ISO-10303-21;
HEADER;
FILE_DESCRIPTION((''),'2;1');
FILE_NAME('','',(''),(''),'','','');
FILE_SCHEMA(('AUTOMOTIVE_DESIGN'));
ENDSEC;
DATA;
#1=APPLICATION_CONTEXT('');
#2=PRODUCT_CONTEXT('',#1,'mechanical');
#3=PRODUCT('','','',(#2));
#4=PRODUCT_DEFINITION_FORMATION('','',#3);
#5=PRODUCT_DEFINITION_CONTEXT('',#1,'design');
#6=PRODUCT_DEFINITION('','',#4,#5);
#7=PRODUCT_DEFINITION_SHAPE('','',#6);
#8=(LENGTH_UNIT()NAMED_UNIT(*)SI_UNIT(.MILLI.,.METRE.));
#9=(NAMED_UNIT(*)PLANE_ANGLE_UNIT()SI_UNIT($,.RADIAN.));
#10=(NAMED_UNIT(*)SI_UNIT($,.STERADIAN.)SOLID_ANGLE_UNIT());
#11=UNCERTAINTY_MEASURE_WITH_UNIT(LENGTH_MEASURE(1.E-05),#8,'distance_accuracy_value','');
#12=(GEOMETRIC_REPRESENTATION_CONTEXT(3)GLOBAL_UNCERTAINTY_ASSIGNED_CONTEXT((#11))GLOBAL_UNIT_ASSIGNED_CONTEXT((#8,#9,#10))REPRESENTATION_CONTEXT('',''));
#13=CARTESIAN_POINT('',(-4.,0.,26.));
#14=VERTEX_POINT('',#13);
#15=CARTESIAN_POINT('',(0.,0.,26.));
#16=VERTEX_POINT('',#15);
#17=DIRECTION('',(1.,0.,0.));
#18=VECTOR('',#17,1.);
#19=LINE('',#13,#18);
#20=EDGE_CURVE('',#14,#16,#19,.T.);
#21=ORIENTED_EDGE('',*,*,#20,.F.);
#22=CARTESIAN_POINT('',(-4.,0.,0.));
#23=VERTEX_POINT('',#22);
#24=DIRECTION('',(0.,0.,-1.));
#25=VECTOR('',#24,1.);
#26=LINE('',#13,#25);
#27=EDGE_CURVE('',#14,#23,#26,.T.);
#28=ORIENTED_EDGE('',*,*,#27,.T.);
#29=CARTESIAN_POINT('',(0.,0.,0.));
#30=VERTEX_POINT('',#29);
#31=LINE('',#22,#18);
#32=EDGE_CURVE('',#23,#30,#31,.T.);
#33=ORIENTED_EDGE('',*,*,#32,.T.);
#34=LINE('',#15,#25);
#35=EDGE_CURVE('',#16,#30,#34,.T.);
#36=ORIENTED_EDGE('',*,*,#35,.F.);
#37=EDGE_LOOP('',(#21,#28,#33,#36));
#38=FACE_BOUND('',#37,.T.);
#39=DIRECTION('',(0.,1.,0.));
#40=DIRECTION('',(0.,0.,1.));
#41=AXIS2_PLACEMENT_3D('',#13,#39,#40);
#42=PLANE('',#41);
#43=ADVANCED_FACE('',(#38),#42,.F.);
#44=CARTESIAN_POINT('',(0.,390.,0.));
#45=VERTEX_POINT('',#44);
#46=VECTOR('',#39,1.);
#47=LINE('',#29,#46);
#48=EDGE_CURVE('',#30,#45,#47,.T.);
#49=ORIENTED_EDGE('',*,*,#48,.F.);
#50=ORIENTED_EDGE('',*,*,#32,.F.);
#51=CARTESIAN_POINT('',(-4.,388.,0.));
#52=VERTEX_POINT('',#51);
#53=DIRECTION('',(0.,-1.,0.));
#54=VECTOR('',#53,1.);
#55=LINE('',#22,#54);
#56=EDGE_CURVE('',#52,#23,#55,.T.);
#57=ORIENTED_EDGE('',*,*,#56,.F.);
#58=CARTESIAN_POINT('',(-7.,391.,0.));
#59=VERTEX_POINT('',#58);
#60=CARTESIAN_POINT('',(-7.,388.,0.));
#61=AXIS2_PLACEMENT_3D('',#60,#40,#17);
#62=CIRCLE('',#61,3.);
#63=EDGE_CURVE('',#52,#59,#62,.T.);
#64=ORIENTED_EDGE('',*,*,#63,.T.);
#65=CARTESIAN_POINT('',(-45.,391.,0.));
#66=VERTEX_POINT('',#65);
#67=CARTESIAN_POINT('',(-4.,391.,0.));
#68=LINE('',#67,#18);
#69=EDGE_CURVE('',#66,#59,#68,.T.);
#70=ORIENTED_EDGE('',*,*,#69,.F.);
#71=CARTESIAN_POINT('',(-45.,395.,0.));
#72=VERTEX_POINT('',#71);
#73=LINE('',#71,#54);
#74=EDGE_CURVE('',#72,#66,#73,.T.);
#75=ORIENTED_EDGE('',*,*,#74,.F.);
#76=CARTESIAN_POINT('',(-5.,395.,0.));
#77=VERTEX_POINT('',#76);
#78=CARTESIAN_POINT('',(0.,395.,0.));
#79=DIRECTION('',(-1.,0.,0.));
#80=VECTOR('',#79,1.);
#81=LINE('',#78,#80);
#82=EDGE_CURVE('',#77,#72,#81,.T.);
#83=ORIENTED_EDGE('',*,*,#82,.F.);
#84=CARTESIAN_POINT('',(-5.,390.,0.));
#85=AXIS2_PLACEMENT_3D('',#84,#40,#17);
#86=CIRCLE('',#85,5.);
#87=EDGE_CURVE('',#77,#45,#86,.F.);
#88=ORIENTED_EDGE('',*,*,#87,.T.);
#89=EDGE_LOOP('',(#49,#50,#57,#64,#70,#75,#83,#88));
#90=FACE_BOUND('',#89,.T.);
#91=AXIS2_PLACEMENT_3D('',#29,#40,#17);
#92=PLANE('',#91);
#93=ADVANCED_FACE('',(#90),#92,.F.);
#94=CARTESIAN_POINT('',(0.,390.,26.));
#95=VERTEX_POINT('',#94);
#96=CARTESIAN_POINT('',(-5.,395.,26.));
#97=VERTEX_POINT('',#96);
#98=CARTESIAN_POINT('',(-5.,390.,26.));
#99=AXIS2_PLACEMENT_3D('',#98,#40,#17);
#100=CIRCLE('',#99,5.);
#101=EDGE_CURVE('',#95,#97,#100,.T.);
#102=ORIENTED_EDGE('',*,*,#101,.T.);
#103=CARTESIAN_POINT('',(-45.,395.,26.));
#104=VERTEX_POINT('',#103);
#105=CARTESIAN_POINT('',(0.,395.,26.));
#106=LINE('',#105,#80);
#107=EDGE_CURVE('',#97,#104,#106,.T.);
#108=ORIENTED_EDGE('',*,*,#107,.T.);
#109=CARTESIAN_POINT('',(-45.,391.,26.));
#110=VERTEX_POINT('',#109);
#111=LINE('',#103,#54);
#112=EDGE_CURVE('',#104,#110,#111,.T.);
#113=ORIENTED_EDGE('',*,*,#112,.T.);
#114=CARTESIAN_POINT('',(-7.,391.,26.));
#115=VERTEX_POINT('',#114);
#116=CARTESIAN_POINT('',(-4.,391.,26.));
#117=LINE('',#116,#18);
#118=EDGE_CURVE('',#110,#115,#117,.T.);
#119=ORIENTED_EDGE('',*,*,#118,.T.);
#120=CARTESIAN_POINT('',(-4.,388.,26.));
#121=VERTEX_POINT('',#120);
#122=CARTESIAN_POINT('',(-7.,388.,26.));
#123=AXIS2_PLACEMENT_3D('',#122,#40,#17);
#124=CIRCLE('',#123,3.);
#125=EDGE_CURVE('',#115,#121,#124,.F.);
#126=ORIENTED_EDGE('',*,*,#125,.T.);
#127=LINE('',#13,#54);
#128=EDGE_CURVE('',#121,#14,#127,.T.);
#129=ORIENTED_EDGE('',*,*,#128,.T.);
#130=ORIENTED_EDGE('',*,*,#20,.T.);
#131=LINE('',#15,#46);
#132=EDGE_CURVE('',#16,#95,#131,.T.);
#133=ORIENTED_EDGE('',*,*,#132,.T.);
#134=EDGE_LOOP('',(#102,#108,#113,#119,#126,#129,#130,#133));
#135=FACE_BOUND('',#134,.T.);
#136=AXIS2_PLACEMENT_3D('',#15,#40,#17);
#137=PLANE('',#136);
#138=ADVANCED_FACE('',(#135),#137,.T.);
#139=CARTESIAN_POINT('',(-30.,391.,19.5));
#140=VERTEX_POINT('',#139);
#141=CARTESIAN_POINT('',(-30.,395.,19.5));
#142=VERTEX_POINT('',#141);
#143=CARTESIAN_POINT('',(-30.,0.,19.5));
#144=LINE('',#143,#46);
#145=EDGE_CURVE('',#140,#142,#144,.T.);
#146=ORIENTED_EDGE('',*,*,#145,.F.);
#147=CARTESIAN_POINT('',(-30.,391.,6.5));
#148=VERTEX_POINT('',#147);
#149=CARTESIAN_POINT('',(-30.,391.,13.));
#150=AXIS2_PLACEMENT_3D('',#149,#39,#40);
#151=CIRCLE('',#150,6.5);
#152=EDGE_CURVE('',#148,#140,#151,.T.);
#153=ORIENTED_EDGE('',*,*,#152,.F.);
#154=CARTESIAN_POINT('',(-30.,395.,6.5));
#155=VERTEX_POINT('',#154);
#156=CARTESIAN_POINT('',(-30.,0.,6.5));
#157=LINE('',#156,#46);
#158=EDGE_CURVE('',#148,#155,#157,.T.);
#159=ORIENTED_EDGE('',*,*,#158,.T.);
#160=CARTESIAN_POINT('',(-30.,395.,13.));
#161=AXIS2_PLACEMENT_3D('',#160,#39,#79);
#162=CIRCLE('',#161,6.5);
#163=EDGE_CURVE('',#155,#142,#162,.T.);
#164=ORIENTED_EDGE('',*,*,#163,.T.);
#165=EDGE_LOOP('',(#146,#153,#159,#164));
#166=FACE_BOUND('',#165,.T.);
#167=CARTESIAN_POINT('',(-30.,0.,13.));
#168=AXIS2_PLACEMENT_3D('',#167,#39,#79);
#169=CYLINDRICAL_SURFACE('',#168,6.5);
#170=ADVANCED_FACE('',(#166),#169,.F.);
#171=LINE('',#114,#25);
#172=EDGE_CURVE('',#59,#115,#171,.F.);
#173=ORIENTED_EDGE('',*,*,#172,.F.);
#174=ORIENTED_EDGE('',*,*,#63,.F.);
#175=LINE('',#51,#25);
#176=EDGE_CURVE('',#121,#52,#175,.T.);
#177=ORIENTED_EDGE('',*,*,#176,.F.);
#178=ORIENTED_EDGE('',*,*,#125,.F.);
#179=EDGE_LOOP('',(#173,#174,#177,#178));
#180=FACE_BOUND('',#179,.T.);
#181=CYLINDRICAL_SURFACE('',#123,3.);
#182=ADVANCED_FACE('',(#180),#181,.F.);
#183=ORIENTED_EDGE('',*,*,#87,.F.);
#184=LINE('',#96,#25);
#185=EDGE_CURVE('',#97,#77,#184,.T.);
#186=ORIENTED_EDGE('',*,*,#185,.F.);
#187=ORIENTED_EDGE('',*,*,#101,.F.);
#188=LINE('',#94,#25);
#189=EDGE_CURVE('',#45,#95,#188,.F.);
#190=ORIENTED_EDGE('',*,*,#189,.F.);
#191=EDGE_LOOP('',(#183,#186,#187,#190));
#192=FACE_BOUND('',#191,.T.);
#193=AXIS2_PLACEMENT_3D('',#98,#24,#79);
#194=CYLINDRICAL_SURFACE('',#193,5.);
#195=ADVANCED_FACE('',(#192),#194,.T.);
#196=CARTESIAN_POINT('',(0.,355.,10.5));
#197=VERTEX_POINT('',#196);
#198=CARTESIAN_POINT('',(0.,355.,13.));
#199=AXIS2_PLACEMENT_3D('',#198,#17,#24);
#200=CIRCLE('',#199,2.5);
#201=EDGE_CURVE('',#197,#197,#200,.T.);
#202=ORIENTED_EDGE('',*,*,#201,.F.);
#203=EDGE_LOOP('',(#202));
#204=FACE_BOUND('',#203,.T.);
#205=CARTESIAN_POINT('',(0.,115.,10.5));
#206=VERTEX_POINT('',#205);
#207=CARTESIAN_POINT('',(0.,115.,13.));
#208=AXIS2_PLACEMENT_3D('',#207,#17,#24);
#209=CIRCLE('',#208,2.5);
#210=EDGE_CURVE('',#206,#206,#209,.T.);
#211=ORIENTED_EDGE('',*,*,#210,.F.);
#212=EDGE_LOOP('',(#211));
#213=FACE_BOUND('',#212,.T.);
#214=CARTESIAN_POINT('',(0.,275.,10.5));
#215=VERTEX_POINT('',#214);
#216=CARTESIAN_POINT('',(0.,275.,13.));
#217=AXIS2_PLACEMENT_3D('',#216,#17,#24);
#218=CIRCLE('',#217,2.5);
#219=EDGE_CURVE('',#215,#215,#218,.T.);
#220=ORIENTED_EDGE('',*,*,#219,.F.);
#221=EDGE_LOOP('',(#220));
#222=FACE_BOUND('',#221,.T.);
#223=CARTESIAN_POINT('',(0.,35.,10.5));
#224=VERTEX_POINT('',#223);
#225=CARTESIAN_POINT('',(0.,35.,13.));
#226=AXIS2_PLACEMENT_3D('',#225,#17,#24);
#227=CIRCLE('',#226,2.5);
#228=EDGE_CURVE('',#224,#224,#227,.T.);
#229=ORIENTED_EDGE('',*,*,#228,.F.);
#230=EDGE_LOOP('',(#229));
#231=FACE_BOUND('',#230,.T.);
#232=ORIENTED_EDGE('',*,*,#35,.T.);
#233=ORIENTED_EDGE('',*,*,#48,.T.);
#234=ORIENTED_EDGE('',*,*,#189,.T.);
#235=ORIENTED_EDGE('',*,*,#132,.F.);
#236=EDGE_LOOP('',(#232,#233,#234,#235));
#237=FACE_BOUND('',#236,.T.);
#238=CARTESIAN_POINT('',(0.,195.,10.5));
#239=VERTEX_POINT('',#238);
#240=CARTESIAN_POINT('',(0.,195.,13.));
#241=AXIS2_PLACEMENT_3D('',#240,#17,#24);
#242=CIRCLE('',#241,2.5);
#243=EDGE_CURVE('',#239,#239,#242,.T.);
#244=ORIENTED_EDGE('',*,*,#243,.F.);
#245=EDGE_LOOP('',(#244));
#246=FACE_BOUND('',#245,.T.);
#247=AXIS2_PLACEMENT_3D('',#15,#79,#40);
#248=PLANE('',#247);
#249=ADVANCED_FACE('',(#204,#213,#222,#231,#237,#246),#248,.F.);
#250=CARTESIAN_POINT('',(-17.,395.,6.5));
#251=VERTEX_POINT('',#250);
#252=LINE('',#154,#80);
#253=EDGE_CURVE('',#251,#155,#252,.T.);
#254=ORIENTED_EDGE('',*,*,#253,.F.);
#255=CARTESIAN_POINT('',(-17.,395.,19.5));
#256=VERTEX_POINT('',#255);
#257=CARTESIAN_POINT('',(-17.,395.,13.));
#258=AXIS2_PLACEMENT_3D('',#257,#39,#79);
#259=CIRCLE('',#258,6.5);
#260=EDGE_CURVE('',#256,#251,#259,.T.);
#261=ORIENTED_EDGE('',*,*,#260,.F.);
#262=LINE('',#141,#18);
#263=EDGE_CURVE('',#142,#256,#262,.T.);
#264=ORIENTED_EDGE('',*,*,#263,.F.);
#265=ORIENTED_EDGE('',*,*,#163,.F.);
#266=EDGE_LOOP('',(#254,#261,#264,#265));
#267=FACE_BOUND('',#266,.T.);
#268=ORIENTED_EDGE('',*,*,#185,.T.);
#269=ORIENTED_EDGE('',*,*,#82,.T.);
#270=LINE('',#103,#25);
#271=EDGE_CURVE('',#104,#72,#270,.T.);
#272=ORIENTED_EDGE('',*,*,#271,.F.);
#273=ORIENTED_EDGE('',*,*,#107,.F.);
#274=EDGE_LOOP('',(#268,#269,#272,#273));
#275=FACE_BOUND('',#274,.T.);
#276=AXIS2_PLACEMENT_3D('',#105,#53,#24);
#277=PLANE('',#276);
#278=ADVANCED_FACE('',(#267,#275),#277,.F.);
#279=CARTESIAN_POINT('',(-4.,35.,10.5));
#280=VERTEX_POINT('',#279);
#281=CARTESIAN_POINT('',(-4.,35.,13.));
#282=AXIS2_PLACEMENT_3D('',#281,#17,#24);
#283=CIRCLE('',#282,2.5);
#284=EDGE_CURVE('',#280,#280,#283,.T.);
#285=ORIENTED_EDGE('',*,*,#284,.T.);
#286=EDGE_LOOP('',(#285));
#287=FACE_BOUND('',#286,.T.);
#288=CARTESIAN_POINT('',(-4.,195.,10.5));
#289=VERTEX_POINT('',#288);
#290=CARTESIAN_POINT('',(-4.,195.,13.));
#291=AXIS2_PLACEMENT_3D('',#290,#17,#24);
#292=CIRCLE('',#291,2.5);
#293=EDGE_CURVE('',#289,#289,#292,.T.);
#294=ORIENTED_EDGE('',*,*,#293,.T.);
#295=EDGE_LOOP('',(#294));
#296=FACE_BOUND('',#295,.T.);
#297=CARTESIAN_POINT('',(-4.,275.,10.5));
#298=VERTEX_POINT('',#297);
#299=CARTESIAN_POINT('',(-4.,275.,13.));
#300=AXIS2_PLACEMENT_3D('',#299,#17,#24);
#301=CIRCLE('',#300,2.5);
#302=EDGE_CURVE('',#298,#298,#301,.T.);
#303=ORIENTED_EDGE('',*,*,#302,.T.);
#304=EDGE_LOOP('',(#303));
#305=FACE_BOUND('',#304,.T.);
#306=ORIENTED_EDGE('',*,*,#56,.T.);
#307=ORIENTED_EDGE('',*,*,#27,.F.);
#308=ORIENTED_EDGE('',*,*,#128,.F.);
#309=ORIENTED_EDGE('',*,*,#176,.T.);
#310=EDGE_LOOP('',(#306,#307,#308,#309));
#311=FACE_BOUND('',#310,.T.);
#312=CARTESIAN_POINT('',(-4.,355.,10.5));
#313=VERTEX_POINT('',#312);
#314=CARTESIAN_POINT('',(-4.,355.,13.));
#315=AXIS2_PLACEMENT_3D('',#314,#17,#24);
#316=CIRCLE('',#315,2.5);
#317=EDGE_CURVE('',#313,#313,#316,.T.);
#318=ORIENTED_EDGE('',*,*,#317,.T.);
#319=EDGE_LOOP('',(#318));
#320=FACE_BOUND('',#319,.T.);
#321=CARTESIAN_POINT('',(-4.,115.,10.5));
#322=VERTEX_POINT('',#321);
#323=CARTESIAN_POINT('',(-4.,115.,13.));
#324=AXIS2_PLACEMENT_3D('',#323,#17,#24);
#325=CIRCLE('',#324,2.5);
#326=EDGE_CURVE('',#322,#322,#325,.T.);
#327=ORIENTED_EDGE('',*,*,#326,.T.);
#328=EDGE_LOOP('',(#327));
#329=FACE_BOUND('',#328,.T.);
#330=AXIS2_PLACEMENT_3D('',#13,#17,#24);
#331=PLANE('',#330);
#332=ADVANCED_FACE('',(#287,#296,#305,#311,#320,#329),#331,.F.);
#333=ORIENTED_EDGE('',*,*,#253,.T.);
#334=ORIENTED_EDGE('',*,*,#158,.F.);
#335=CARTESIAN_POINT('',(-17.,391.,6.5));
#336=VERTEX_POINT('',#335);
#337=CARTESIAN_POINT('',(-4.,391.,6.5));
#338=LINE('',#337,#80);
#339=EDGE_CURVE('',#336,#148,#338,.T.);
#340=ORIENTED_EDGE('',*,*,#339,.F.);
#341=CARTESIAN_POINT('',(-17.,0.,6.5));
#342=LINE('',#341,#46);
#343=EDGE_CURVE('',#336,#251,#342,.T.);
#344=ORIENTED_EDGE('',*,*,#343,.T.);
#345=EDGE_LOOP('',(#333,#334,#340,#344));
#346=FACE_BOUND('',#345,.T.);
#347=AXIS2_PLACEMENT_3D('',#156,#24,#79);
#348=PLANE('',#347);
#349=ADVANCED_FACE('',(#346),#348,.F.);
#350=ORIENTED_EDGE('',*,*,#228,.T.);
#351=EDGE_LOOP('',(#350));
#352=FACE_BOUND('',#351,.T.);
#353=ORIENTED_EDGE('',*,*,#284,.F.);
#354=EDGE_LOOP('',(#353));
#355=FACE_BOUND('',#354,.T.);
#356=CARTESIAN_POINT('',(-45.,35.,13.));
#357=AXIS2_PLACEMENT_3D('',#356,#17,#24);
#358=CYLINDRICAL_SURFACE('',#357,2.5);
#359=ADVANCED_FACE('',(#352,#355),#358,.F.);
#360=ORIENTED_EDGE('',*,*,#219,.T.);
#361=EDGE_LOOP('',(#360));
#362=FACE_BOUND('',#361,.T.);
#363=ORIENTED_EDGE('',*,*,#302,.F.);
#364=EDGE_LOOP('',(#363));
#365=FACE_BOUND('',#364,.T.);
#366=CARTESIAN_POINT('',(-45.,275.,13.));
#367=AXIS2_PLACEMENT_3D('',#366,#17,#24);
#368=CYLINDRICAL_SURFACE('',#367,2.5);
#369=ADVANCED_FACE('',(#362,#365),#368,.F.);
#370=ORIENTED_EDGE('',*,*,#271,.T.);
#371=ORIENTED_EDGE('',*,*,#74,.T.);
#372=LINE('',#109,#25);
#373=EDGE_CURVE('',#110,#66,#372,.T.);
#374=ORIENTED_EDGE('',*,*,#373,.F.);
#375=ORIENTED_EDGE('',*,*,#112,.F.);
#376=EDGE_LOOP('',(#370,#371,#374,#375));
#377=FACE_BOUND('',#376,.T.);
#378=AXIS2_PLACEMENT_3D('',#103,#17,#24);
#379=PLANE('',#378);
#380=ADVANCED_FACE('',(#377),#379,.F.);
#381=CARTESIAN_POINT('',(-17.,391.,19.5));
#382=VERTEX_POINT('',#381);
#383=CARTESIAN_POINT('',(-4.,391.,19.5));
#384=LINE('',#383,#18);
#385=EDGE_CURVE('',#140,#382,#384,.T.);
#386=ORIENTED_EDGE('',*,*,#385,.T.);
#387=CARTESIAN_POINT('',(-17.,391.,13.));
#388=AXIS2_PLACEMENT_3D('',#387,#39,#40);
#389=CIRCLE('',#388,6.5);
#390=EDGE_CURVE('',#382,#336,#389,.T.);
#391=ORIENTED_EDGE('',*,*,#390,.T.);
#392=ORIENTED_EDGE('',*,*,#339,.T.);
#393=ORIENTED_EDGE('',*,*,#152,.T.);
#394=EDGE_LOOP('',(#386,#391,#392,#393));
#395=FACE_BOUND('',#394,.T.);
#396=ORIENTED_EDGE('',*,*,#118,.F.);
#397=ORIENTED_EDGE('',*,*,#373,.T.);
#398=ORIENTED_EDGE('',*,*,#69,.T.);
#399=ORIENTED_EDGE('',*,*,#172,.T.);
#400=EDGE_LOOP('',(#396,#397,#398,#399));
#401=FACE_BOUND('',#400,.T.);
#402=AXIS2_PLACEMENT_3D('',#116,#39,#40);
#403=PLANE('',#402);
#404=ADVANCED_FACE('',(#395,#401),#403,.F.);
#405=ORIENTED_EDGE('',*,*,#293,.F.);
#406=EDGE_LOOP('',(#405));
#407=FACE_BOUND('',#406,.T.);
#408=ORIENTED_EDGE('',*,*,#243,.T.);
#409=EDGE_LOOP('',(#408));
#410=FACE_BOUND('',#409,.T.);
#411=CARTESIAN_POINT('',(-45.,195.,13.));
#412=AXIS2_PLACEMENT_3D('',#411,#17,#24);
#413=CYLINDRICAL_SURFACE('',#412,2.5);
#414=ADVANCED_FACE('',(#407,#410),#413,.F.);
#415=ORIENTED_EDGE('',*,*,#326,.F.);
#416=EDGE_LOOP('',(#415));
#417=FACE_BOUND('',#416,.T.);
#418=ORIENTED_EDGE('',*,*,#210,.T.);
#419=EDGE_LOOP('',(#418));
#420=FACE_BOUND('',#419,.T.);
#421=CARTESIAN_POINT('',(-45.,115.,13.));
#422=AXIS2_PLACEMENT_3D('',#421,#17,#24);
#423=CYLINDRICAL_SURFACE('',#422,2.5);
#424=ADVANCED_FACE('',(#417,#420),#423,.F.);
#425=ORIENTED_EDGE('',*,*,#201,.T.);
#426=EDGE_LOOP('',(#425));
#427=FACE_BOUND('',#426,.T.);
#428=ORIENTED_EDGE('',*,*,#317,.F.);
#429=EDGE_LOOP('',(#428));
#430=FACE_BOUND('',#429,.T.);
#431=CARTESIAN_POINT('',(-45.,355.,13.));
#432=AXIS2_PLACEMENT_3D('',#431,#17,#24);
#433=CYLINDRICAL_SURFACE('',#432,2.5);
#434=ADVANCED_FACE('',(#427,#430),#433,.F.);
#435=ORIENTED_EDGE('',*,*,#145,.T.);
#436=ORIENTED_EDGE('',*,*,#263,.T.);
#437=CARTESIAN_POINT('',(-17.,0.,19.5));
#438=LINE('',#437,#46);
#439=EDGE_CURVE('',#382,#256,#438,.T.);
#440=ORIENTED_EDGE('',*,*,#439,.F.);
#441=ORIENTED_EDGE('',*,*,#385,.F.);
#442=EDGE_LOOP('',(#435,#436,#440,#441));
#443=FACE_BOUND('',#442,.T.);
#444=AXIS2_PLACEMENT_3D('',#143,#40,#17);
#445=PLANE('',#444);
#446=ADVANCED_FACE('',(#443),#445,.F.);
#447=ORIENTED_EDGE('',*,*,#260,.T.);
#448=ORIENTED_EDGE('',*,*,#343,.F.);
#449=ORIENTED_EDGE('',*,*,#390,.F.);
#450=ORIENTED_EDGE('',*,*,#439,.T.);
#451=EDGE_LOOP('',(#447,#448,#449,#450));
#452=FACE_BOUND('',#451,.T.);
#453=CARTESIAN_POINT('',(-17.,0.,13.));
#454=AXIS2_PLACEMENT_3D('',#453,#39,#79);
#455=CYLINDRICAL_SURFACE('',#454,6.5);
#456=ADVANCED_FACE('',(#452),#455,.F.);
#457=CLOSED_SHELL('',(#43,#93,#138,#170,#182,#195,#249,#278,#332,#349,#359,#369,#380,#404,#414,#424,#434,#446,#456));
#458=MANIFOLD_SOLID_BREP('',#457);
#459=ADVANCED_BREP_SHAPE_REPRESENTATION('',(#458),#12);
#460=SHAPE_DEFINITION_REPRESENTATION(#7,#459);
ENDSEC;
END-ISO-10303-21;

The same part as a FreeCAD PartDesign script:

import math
import FreeCAD as App
import Part
import Sketcher


def edges_at(feature, points):
    """Names of the edges that pass closest to the given points."""
    edges = feature.Shape.Edges
    near = lambda p: min(range(len(edges)), key=lambda i: edges[i].distToShape(Part.Vertex(*p))[0])
    return sorted({f"Edge{near(p) + 1}" for p in points})


def add_polygon(sketch, points):
    """Adds a closed chain of lines whose ends are joined by coincident constraints."""
    first, n = sketch.GeometryCount, len(points)
    for a, b in zip(points, points[1:] + points[:1]):
        sketch.addGeometry(Part.LineSegment(App.Vector(*a, 0), App.Vector(*b, 0)), False)
    for i in range(n):
        sketch.addConstraint(Sketcher.Constraint("Coincident", first + i, 2, first + (i + 1) % n, 1))

doc = App.newDocument("Part")
body = doc.addObject("PartDesign::Body", "Body")

# Sketch on XY plane
sketch1 = body.newObject("Sketcher::SketchObject", "Sketch")
sketch1.AttachmentSupport = (doc.getObject("XY_Plane"), [""])
sketch1.MapMode = "FlatFace"
add_polygon(sketch1, [(0, 0), (0, 395), (-45, 395), (-45, 391), (-4, 391), (-4, 0)])  # lines 0-5
sketch1.addConstraint(Sketcher.Constraint("Vertical", 0))
sketch1.addConstraint(Sketcher.Constraint("Horizontal", 1))
sketch1.addConstraint(Sketcher.Constraint("Vertical", 2))
sketch1.addConstraint(Sketcher.Constraint("Horizontal", 3))
sketch1.addConstraint(Sketcher.Constraint("Vertical", 4))
sketch1.addConstraint(Sketcher.Constraint("Horizontal", 5))
sketch1.addConstraint(Sketcher.Constraint("Coincident", 5, 2, -1, 1))
sketch1.addConstraint(Sketcher.Constraint("Equal", 5, 2))
sketch1.addConstraint(Sketcher.Constraint("DistanceX", 1, 2, 1, 1, 45.0))
sketch1.addConstraint(Sketcher.Constraint("DistanceX", 3, 1, 3, 2, 41.0))
sketch1.addConstraint(Sketcher.Constraint("DistanceY", 0, 1, 0, 2, 395.0))
pad1 = body.newObject("PartDesign::Pad", "Pad")
pad1.Profile = sketch1
pad1.Length = 26

# Sketch on YZ plane
sketch2 = body.newObject("Sketcher::SketchObject", "Sketch001")
sketch2.AttachmentSupport = (doc.getObject("YZ_Plane"), [""])
sketch2.MapMode = "FlatFace"
sketch2.addGeometry(Part.Circle(App.Vector(195, 13, 0), App.Vector(0, 0, 1), 2.5), False)
sketch2.addGeometry(Part.Circle(App.Vector(115, 13, 0), App.Vector(0, 0, 1), 2.5), False)
sketch2.addGeometry(Part.Circle(App.Vector(35, 13, 0), App.Vector(0, 0, 1), 2.5), False)
sketch2.addGeometry(Part.Circle(App.Vector(275, 13, 0), App.Vector(0, 0, 1), 2.5), False)
sketch2.addGeometry(Part.Circle(App.Vector(355, 13, 0), App.Vector(0, 0, 1), 2.5), False)
sketch2.addConstraint(Sketcher.Constraint("Equal", 0, 1))
sketch2.addConstraint(Sketcher.Constraint("Equal", 1, 2))
sketch2.addConstraint(Sketcher.Constraint("Equal", 2, 3))
sketch2.addConstraint(Sketcher.Constraint("Equal", 3, 4))
sketch2.addConstraint(Sketcher.Constraint("Horizontal", 0, 3, 1, 3))
sketch2.addConstraint(Sketcher.Constraint("Horizontal", 1, 3, 2, 3))
sketch2.addConstraint(Sketcher.Constraint("Horizontal", 2, 3, 3, 3))
sketch2.addConstraint(Sketcher.Constraint("Horizontal", 3, 3, 4, 3))
sketch2.addConstraint(Sketcher.Constraint("Diameter", 0, 5.0))
sketch2.addConstraint(Sketcher.Constraint("DistanceX", -1, 1, 0, 3, 195.0))
sketch2.addConstraint(Sketcher.Constraint("DistanceY", -1, 1, 0, 3, 13.0))
sketch2.addConstraint(Sketcher.Constraint("DistanceX", -1, 1, 1, 3, 115.0))
sketch2.addConstraint(Sketcher.Constraint("DistanceX", -1, 1, 2, 3, 35.0))
sketch2.addConstraint(Sketcher.Constraint("DistanceX", -1, 1, 3, 3, 275.0))
sketch2.addConstraint(Sketcher.Constraint("DistanceX", -1, 1, 4, 3, 355.0))
pocket1 = body.newObject("PartDesign::Pocket", "Pocket")
pocket1.Profile = sketch2
pocket1.Type = "ThroughAll"

# Sketch on XZ plane
sketch3 = body.newObject("Sketcher::SketchObject", "Sketch002")
sketch3.AttachmentSupport = (doc.getObject("XZ_Plane"), [""])
sketch3.MapMode = "FlatFace"
sketch3.AttachmentOffset = App.Placement(App.Vector(0, 0, -395), App.Rotation())
sketch3.addGeometry(Part.LineSegment(App.Vector(-17, 6, 0), App.Vector(-30, 6, 0)), False)
sketch3.addGeometry(Part.ArcOfCircle(Part.Circle(App.Vector(-30, 13, 0), App.Vector(0, 0, 1), 6), math.radians(90), math.radians(270)), False)
sketch3.addGeometry(Part.LineSegment(App.Vector(-30, 20, 0), App.Vector(-17, 20, 0)), False)
sketch3.addGeometry(Part.ArcOfCircle(Part.Circle(App.Vector(-17, 13, 0), App.Vector(0, 0, 1), 6), math.radians(-90), math.radians(90)), False)
sketch3.addConstraint(Sketcher.Constraint("Tangent", 0, 2, 1, 2))
sketch3.addConstraint(Sketcher.Constraint("Tangent", 1, 1, 2, 1))
sketch3.addConstraint(Sketcher.Constraint("Tangent", 2, 2, 3, 2))
sketch3.addConstraint(Sketcher.Constraint("Tangent", 3, 1, 0, 1))
sketch3.addConstraint(Sketcher.Constraint("Horizontal", 0))
sketch3.addConstraint(Sketcher.Constraint("Horizontal", 2))
sketch3.addConstraint(Sketcher.Constraint("Radius", 1, 6.5))
sketch3.addConstraint(Sketcher.Constraint("DistanceX", 0, 2, 0, 1, 13.0))
sketch3.addConstraint(Sketcher.Constraint("DistanceX", 1, 3, -1, 1, 30.0))
sketch3.addConstraint(Sketcher.Constraint("DistanceY", -1, 1, 1, 3, 13.0))
pocket2 = body.newObject("PartDesign::Pocket", "Pocket001")
pocket2.Profile = sketch3
pocket2.Type = "ThroughAll"
pocket2.Reversed = True
doc.recompute()

fillet = body.newObject("PartDesign::Fillet", "Fillet")
fillet.Base = (pocket2, edges_at(pocket2, [(-4, 391, 13)]))
fillet.Radius = 3
doc.recompute()

fillet2 = body.newObject("PartDesign::Fillet", "Fillet001")
fillet2.Base = (fillet, edges_at(fillet, [(0, 395, 13)]))
fillet2.Radius = 5

doc.recompute()
